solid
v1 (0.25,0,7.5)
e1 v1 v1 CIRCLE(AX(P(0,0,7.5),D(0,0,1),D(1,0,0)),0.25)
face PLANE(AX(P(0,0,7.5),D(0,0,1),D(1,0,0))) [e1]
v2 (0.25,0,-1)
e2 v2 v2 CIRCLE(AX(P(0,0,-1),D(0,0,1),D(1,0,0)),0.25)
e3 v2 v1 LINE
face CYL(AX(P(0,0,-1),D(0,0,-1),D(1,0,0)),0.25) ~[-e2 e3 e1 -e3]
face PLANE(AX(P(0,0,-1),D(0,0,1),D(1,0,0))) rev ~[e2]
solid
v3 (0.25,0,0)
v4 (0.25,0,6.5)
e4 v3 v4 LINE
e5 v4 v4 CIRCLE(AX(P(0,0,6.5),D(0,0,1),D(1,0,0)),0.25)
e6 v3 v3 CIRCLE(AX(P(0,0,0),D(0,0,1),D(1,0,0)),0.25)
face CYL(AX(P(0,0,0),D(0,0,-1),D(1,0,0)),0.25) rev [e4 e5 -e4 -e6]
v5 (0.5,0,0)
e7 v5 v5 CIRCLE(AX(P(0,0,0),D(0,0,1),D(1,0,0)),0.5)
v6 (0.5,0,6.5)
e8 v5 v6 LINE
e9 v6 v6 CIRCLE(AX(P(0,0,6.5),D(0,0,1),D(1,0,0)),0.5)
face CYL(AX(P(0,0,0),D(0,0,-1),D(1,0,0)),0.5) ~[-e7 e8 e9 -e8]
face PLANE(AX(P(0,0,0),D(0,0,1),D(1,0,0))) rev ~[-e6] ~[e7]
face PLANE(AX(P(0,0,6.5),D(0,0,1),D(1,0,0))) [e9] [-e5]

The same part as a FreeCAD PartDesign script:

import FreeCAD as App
import Part
import Sketcher

V = App.Vector

doc = App.newDocument("Part")
params = doc.addObject("Spreadsheet::Sheet", "Params")
for row, (alias, value) in enumerate([
    ("sketch1_diameter", "1 mm"),
    ("sketch1_diameter2", "0.5 mm"),
    ("pad1_length", "6.5 mm"),
    ("sketch2_diameter", "0.5 mm"),
    ("pad2_length", "8.5 mm"),
], start=1):
    params.set(f"A{row}", alias)
    params.set(f"B{row}", "=" + value)
    params.setAlias(f"B{row}", alias)

body = doc.addObject("PartDesign::Body", "Body")

sketch1 = body.newObject("Sketcher::SketchObject", "Sketch")
sketch1.AttachmentSupport = (doc.getObject("XY_Plane"), [""])
sketch1.MapMode = "FlatFace"
sketch1.addGeometry([
    Part.Circle(V(0, 0, 0), V(0, 0, 1), 0.5),
    Part.Circle(V(0, 0, 0), V(0, 0, 1), 0.25),
], False)
sketch1.addConstraint([
    Sketcher.Constraint("Coincident", 0, 3, -1, 1),
    Sketcher.Constraint("Coincident", 1, 3, -1, 1),
    Sketcher.Constraint("Diameter", 0, 1.0),
    Sketcher.Constraint("Diameter", 1, 0.5),
])
sketch1.setExpression("Constraints[2]", "Params.sketch1_diameter")
sketch1.setExpression("Constraints[3]", "Params.sketch1_diameter2")
pad1 = body.newObject("PartDesign::Pad", "Pad")
pad1.Profile = sketch1
pad1.setExpression("Length", "Params.pad1_length")
body2 = doc.addObject("PartDesign::Body", "Body001")

sketch2 = body2.newObject("Sketcher::SketchObject", "Sketch001")
sketch2.AttachmentSupport = (doc.getObject("XY_Plane001"), [""])
sketch2.MapMode = "FlatFace"
sketch2.AttachmentOffset = App.Placement(V(0, 0, -1), App.Rotation())
sketch2.addGeometry(Part.Circle(V(0, 0, 0), V(0, 0, 1), 0.25), False)
sketch2.addConstraint([
    Sketcher.Constraint("Coincident", 0, 3, -1, 1),
    Sketcher.Constraint("Diameter", 0, 0.5),
])
sketch2.setExpression("Constraints[1]", "Params.sketch2_diameter")
pad2 = body2.newObject("PartDesign::Pad", "Pad001")
pad2.Profile = sketch2
pad2.setExpression("Length", "Params.pad2_length")

doc.recompute()
